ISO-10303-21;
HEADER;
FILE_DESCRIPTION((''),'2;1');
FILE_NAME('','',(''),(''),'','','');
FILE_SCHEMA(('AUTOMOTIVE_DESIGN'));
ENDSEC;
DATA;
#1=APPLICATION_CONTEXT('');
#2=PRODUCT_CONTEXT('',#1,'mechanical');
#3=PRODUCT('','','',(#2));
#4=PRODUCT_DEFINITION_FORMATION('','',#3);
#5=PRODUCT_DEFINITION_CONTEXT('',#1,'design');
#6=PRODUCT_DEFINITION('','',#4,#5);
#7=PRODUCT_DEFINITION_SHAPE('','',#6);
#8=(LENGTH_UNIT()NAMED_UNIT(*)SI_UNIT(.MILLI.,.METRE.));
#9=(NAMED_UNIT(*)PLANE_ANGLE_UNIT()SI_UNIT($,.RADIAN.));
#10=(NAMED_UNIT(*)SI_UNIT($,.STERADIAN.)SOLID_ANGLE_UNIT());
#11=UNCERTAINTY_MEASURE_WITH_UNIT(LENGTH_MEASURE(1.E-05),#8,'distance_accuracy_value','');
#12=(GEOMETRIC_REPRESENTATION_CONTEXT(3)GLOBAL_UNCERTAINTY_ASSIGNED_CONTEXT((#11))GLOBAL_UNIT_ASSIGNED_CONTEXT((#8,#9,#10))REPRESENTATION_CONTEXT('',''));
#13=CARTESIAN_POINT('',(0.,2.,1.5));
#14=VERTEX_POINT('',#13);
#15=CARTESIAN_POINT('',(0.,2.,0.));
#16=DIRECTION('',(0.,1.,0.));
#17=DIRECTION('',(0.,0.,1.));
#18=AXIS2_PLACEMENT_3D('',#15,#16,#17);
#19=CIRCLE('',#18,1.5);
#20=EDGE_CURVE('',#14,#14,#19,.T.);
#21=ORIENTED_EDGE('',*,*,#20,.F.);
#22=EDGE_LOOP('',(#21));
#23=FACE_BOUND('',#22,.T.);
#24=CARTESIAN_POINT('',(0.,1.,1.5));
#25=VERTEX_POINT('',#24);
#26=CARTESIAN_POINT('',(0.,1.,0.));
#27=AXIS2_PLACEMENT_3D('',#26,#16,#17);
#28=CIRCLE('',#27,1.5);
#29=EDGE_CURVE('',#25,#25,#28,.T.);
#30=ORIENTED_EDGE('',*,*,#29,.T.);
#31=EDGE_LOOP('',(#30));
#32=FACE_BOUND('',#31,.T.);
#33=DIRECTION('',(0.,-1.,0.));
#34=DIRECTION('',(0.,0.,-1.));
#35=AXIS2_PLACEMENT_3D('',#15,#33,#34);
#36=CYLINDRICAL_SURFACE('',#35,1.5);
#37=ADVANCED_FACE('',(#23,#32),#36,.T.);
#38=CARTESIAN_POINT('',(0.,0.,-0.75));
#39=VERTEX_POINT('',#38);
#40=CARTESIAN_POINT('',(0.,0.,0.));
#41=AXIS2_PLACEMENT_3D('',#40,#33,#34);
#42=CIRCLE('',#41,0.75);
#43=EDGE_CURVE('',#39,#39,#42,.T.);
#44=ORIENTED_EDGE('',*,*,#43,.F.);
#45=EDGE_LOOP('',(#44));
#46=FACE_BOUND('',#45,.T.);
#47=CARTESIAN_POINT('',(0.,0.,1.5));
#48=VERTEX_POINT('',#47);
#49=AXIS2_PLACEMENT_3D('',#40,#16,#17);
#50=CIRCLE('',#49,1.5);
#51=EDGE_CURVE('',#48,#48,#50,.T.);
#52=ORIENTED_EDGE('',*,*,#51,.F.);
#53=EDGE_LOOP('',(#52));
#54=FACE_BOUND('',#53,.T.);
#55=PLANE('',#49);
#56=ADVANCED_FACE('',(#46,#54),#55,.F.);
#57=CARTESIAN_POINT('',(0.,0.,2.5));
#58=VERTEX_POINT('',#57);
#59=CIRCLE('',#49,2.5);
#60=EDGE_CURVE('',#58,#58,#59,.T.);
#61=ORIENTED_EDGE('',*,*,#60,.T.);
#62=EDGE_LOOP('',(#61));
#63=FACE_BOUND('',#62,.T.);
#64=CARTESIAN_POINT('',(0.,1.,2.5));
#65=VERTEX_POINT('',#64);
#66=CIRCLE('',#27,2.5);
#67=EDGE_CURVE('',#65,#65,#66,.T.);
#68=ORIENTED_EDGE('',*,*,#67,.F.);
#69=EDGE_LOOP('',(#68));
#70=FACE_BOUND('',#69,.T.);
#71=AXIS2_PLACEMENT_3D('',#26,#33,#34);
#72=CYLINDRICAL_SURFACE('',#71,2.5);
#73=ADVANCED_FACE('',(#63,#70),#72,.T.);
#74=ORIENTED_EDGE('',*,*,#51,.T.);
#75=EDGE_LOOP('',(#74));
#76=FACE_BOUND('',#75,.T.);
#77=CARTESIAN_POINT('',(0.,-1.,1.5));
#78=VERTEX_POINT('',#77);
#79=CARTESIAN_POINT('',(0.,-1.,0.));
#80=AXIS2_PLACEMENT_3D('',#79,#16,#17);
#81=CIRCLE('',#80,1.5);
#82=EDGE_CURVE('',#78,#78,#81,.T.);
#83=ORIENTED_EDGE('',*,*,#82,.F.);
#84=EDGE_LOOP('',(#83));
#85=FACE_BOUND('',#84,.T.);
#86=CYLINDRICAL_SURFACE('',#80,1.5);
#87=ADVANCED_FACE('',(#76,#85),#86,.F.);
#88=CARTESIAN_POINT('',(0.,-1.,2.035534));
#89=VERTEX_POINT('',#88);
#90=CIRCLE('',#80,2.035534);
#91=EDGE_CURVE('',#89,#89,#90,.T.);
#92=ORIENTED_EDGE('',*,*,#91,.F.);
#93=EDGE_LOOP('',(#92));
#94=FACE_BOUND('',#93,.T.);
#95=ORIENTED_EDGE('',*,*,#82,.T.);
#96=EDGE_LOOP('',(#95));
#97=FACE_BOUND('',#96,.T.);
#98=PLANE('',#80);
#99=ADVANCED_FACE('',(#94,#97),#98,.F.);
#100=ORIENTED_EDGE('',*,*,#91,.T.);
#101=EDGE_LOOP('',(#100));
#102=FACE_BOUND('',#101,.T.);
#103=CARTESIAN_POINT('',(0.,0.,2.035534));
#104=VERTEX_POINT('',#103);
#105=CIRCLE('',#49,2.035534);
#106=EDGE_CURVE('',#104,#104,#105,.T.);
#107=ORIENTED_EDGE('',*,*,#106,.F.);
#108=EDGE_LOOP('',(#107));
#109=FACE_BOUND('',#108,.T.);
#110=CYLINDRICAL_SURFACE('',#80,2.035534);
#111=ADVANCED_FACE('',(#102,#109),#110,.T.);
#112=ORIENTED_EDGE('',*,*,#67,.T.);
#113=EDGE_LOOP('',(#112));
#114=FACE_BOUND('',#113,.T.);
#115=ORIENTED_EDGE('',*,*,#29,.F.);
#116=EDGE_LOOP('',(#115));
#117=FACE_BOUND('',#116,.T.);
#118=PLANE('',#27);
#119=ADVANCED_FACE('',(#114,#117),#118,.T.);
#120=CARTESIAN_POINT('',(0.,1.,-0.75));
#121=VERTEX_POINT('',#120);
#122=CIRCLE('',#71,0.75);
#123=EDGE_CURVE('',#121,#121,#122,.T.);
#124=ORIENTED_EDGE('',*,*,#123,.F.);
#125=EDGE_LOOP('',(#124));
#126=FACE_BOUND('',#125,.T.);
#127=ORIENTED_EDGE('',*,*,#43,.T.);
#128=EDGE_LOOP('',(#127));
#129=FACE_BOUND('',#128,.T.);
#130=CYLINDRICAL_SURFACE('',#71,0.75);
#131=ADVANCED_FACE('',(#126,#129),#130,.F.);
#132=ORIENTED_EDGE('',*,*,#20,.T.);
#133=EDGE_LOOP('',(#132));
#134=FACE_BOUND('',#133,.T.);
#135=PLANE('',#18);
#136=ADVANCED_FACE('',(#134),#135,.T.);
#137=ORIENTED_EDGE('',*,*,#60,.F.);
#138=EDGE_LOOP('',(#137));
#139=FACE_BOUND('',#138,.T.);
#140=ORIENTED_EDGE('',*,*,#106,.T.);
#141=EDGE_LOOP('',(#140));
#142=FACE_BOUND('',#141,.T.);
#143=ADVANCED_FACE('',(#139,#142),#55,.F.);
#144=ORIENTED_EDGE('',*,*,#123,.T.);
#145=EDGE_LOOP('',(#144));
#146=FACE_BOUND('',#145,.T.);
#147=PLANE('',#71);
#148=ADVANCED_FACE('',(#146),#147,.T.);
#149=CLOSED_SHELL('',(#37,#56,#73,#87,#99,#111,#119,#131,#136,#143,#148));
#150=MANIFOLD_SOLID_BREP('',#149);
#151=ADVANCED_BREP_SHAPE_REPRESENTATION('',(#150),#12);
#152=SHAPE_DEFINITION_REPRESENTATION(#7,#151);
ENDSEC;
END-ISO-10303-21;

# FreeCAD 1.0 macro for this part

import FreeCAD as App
import Part
import Sketcher

V = App.Vector
Q = App.Units.Quantity

doc = App.newDocument("Part")
body = doc.addObject("PartDesign::Body", "Body")

# Sketch on XZ plane
sketch1 = body.newObject("Sketcher::SketchObject", "Sketch")
sketch1.AttachmentSupport = (doc.getObject("XZ_Plane"), [""])
sketch1.MapMode = "FlatFace"
sketch1.addGeometry(Part.Circle(V(0, 0, 0), V(0, 0, 1), 1.5), False)
sketch1.addConstraint(Sketcher.Constraint("Coincident", 0, 3, -1, 1))
sketch1.addConstraint(Sketcher.Constraint("Diameter", 0, Q("3 mm")))
pad1 = body.newObject("PartDesign::Pad", "Pad")
pad1.Profile = sketch1
pad1.Length = 2
pad1.Reversed = True
body2 = doc.addObject("PartDesign::Body", "Body001")

# Sketch on XZ plane
sketch2 = body2.newObject("Sketcher::SketchObject", "Sketch001")
sketch2.AttachmentSupport = (doc.getObject("XZ_Plane001"), [""])
sketch2.MapMode = "FlatFace"
sketch2.addGeometry(Part.Circle(V(0, 0, 0), V(0, 0, 1), 2), False)
sketch2.addGeometry(Part.Circle(V(0, 0, 0), V(0, 0, 1), 1.5), False)
sketch2.addConstraint(Sketcher.Constraint("Coincident", 0, 3, -1, 1))
sketch2.addConstraint(Sketcher.Constraint("Coincident", 1, 3, -1, 1))
sketch2.addConstraint(Sketcher.Constraint("Diameter", 1, Q("3 mm")))
sketch2.addConstraint(Sketcher.Constraint("Diameter", 0, Q("4.071068 mm")))
pad2 = body2.newObject("PartDesign::Pad", "Pad001")
pad2.Profile = sketch2
pad2.Length = 1
body.AllowCompound = True
doc.recompute()

boolean = body.newObject("PartDesign::Boolean", "Boolean")
boolean.Type = "Fuse"
boolean.addObjects([body2])

# Sketch on XZ plane
sketch3 = body.newObject("Sketcher::SketchObject", "Sketch002")
sketch3.AttachmentSupport = (doc.getObject("XZ_Plane"), [""])
sketch3.MapMode = "FlatFace"
sketch3.addGeometry(Part.Circle(V(0, 0, 0), V(0, 0, 1), 2.5), False)
sketch3.addConstraint(Sketcher.Constraint("Coincident", 0, 3, -1, 1))
sketch3.addConstraint(Sketcher.Constraint("Diameter", 0, Q("5 mm")))
pad3 = body.newObject("PartDesign::Pad", "Pad002")
pad3.Profile = sketch3
pad3.Length = 1
pad3.Reversed = True

# Sketch on XZ plane
sketch4 = body.newObject("Sketcher::SketchObject", "Sketch003")
sketch4.AttachmentSupport = (doc.getObject("XZ_Plane"), [""])
sketch4.MapMode = "FlatFace"
sketch4.addGeometry(Part.Circle(V(0, 0, 0), V(0, 0, 1), 0.8), False)
sketch4.addConstraint(Sketcher.Constraint("Coincident", 0, 3, -1, 1))
sketch4.addConstraint(Sketcher.Constraint("Diameter", 0, Q("1.5 mm")))
pocket1 = body.newObject("PartDesign::Pocket", "Pocket")
pocket1.Profile = sketch4
pocket1.Length = 1

doc.recompute()
